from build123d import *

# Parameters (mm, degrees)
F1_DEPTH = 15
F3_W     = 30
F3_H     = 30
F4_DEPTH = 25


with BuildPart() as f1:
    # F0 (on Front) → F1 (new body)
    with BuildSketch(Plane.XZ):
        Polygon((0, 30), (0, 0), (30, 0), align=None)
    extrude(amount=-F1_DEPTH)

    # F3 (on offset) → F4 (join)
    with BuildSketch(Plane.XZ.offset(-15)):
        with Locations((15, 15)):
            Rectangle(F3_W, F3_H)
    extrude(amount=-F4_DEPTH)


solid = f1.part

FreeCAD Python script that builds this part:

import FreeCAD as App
import Part
import Sketcher

V = App.Vector
Q = App.Units.Quantity


def add_polygon(sketch, points):
    """Adds a closed chain of lines whose ends are joined by coincident constraints."""
    first, n = sketch.GeometryCount, len(points)
    for a, b in zip(points, points[1:] + points[:1]):
        sketch.addGeometry(Part.LineSegment(App.Vector(*a, 0), App.Vector(*b, 0)), False)
    for i in range(n):
        sketch.addConstraint(Sketcher.Constraint("Coincident", first + i, 2, first + (i + 1) % n, 1))

doc = App.newDocument("Part")
body = doc.addObject("PartDesign::Body", "Body")

sketch1 = body.newObject("Sketcher::SketchObject", "Sketch")
sketch1.AttachmentSupport = (doc.getObject("XZ_Plane"), [""])
sketch1.MapMode = "FlatFace"
add_polygon(sketch1, [(0, 30), (0, 0), (30, 0)])
sketch1.addConstraint([
    Sketcher.Constraint("Vertical", 0),
    Sketcher.Constraint("Horizontal", 1),
    Sketcher.Constraint("Coincident", 0, 2, -1, 1),
    Sketcher.Constraint("Equal", 1, 0),
    Sketcher.Constraint("DistanceX", 1, 1, 1, 2, Q("30 mm")),
])
pad1 = body.newObject("PartDesign::Pad", "Pad")
pad1.Profile = sketch1
pad1.Length = 15
pad1.Reversed = True

sketch2 = body.newObject("Sketcher::SketchObject", "Sketch001")
sketch2.AttachmentSupport = (doc.getObject("XZ_Plane"), [""])
sketch2.MapMode = "FlatFace"
sketch2.AttachmentOffset = App.Placement(V(0, 0, -15), App.Rotation())
add_polygon(sketch2, [(0, 30), (0, 0), (30, 0), (30, 30)])
sketch2.addConstraint([
    Sketcher.Constraint("Vertical", 0),
    Sketcher.Constraint("Horizontal", 1),
    Sketcher.Constraint("Vertical", 2),
    Sketcher.Constraint("Horizontal", 3),
    Sketcher.Constraint("Coincident", 0, 2, -1, 1),
    Sketcher.Constraint("Equal", 3, 0),
    Sketcher.Constraint("DistanceX", 1, 1, 1, 2, Q("30 mm")),
])
pad2 = body.newObject("PartDesign::Pad", "Pad001")
pad2.Profile = sketch2
pad2.Length = 25
pad2.Reversed = True

doc.recompute()
